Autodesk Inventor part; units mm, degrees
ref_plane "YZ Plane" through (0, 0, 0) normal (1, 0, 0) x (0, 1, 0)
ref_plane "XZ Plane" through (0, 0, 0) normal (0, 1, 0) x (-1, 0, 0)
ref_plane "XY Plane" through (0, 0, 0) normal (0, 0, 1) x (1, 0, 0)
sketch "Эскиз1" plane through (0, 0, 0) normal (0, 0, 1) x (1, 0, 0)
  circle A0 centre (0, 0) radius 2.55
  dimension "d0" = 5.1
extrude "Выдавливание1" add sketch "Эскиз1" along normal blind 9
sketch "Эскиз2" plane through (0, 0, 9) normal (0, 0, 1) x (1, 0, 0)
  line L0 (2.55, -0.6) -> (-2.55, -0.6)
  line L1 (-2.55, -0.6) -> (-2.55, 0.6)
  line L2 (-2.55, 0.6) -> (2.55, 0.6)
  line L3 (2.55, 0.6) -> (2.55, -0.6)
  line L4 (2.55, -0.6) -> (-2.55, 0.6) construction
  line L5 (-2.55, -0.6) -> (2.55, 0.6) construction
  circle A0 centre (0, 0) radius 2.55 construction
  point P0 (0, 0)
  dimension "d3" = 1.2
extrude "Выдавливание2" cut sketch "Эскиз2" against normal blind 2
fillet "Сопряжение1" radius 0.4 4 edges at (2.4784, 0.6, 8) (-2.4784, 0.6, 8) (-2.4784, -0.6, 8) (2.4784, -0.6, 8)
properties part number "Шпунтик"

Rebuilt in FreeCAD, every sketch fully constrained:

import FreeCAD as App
import Part
import Sketcher
Q = App.Units.Quantity


def edges_at(feature, points):
    """Names of the edges that pass closest to the given points."""
    edges = feature.Shape.Edges
    near = lambda p: min(range(len(edges)), key=lambda i: edges[i].distToShape(Part.Vertex(*p))[0])
    return sorted({f"Edge{near(p) + 1}" for p in points})

doc = App.newDocument("Part")
params = doc.addObject("Spreadsheet::Sheet", "Params")
for row, (alias, value) in enumerate([
    ("sketch1_diameter", "5.1 mm"),
    ("pad1_length", "9 mm"),
    ("sketch2_height", "1.2 mm"),
    ("sketch2_width", "5.1 mm"),
    ("pocket1_length", "2 mm"),
    ("fillet_radius", "0.4 mm"),
], start=1):
    params.set(f"A{row}", alias)
    params.set(f"B{row}", "=" + value)
    params.setAlias(f"B{row}", alias)

body = doc.addObject("PartDesign::Body", "Body")

# Sketch on XY plane
sketch1 = body.newObject("Sketcher::SketchObject", "Sketch")
sketch1.AttachmentSupport = (doc.getObject("XY_Plane"), [""])
sketch1.MapMode = "FlatFace"
sketch1.addGeometry(Part.Circle(App.Vector(0, 0, 0), App.Vector(0, 0, 1), 2.5), False)
sketch1.addConstraint(Sketcher.Constraint("Coincident", 0, 3, -1, 1))
sketch1.addConstraint(Sketcher.Constraint("Diameter", 0, Q("5.1 mm")))
sketch1.setExpression("Constraints[1]", "Params.sketch1_diameter")
pad1 = body.newObject("PartDesign::Pad", "Pad")
pad1.Profile = sketch1
pad1.setExpression("Length", "Params.pad1_length")

# Sketch on XY plane
sketch2 = body.newObject("Sketcher::SketchObject", "Sketch001")
sketch2.AttachmentSupport = (doc.getObject("XY_Plane"), [""])
sketch2.MapMode = "FlatFace"
sketch2.AttachmentOffset = App.Placement(App.Vector(0, 0, 9), App.Rotation())
sketch2.addGeometry(Part.LineSegment(App.Vector(-2.5, -0.6, 0), App.Vector(2.5, -0.6, 0)), False)
sketch2.addGeometry(Part.LineSegment(App.Vector(2.5, -0.6, 0), App.Vector(2.5, 0.6, 0)), False)
sketch2.addGeometry(Part.LineSegment(App.Vector(2.5, 0.6, 0), App.Vector(-2.5, 0.6, 0)), False)
sketch2.addGeometry(Part.LineSegment(App.Vector(-2.5, 0.6, 0), App.Vector(-2.5, -0.6, 0)), False)
sketch2.addConstraint(Sketcher.Constraint("Coincident", 0, 2, 1, 1))
sketch2.addConstraint(Sketcher.Constraint("Coincident", 1, 2, 2, 1))
sketch2.addConstraint(Sketcher.Constraint("Coincident", 2, 2, 3, 1))
sketch2.addConstraint(Sketcher.Constraint("Coincident", 3, 2, 0, 1))
sketch2.addConstraint(Sketcher.Constraint("Horizontal", 0))
sketch2.addConstraint(Sketcher.Constraint("Vertical", 1))
sketch2.addConstraint(Sketcher.Constraint("Horizontal", 2))
sketch2.addConstraint(Sketcher.Constraint("Vertical", 3))
sketch2.addConstraint(Sketcher.Constraint("Symmetric", 0, 2, 2, 2, -1, 1))
sketch2.addConstraint(Sketcher.Constraint("DistanceY", 1, 1, 1, 2, Q("1.2 mm")))
sketch2.addConstraint(Sketcher.Constraint("DistanceX", 0, 1, 0, 2, Q("5.1 mm")))
sketch2.setExpression("Constraints[9]", "Params.sketch2_height")
sketch2.setExpression("Constraints[10]", "Params.sketch2_width")
pocket1 = body.newObject("PartDesign::Pocket", "Pocket")
pocket1.Profile = sketch2
pocket1.setExpression("Length", "Params.pocket1_length")
doc.recompute()

fillet = body.newObject("PartDesign::Fillet", "Fillet")
fillet.Base = (pocket1, edges_at(pocket1, [
    (2.478, 0.6, 8),
    (-2.478, 0.6, 8),
    (-2.478, -0.6, 8),
    (2.478, -0.6, 8),
]))
fillet.setExpression("Radius", "Params.fillet_radius")

doc.recompute()
